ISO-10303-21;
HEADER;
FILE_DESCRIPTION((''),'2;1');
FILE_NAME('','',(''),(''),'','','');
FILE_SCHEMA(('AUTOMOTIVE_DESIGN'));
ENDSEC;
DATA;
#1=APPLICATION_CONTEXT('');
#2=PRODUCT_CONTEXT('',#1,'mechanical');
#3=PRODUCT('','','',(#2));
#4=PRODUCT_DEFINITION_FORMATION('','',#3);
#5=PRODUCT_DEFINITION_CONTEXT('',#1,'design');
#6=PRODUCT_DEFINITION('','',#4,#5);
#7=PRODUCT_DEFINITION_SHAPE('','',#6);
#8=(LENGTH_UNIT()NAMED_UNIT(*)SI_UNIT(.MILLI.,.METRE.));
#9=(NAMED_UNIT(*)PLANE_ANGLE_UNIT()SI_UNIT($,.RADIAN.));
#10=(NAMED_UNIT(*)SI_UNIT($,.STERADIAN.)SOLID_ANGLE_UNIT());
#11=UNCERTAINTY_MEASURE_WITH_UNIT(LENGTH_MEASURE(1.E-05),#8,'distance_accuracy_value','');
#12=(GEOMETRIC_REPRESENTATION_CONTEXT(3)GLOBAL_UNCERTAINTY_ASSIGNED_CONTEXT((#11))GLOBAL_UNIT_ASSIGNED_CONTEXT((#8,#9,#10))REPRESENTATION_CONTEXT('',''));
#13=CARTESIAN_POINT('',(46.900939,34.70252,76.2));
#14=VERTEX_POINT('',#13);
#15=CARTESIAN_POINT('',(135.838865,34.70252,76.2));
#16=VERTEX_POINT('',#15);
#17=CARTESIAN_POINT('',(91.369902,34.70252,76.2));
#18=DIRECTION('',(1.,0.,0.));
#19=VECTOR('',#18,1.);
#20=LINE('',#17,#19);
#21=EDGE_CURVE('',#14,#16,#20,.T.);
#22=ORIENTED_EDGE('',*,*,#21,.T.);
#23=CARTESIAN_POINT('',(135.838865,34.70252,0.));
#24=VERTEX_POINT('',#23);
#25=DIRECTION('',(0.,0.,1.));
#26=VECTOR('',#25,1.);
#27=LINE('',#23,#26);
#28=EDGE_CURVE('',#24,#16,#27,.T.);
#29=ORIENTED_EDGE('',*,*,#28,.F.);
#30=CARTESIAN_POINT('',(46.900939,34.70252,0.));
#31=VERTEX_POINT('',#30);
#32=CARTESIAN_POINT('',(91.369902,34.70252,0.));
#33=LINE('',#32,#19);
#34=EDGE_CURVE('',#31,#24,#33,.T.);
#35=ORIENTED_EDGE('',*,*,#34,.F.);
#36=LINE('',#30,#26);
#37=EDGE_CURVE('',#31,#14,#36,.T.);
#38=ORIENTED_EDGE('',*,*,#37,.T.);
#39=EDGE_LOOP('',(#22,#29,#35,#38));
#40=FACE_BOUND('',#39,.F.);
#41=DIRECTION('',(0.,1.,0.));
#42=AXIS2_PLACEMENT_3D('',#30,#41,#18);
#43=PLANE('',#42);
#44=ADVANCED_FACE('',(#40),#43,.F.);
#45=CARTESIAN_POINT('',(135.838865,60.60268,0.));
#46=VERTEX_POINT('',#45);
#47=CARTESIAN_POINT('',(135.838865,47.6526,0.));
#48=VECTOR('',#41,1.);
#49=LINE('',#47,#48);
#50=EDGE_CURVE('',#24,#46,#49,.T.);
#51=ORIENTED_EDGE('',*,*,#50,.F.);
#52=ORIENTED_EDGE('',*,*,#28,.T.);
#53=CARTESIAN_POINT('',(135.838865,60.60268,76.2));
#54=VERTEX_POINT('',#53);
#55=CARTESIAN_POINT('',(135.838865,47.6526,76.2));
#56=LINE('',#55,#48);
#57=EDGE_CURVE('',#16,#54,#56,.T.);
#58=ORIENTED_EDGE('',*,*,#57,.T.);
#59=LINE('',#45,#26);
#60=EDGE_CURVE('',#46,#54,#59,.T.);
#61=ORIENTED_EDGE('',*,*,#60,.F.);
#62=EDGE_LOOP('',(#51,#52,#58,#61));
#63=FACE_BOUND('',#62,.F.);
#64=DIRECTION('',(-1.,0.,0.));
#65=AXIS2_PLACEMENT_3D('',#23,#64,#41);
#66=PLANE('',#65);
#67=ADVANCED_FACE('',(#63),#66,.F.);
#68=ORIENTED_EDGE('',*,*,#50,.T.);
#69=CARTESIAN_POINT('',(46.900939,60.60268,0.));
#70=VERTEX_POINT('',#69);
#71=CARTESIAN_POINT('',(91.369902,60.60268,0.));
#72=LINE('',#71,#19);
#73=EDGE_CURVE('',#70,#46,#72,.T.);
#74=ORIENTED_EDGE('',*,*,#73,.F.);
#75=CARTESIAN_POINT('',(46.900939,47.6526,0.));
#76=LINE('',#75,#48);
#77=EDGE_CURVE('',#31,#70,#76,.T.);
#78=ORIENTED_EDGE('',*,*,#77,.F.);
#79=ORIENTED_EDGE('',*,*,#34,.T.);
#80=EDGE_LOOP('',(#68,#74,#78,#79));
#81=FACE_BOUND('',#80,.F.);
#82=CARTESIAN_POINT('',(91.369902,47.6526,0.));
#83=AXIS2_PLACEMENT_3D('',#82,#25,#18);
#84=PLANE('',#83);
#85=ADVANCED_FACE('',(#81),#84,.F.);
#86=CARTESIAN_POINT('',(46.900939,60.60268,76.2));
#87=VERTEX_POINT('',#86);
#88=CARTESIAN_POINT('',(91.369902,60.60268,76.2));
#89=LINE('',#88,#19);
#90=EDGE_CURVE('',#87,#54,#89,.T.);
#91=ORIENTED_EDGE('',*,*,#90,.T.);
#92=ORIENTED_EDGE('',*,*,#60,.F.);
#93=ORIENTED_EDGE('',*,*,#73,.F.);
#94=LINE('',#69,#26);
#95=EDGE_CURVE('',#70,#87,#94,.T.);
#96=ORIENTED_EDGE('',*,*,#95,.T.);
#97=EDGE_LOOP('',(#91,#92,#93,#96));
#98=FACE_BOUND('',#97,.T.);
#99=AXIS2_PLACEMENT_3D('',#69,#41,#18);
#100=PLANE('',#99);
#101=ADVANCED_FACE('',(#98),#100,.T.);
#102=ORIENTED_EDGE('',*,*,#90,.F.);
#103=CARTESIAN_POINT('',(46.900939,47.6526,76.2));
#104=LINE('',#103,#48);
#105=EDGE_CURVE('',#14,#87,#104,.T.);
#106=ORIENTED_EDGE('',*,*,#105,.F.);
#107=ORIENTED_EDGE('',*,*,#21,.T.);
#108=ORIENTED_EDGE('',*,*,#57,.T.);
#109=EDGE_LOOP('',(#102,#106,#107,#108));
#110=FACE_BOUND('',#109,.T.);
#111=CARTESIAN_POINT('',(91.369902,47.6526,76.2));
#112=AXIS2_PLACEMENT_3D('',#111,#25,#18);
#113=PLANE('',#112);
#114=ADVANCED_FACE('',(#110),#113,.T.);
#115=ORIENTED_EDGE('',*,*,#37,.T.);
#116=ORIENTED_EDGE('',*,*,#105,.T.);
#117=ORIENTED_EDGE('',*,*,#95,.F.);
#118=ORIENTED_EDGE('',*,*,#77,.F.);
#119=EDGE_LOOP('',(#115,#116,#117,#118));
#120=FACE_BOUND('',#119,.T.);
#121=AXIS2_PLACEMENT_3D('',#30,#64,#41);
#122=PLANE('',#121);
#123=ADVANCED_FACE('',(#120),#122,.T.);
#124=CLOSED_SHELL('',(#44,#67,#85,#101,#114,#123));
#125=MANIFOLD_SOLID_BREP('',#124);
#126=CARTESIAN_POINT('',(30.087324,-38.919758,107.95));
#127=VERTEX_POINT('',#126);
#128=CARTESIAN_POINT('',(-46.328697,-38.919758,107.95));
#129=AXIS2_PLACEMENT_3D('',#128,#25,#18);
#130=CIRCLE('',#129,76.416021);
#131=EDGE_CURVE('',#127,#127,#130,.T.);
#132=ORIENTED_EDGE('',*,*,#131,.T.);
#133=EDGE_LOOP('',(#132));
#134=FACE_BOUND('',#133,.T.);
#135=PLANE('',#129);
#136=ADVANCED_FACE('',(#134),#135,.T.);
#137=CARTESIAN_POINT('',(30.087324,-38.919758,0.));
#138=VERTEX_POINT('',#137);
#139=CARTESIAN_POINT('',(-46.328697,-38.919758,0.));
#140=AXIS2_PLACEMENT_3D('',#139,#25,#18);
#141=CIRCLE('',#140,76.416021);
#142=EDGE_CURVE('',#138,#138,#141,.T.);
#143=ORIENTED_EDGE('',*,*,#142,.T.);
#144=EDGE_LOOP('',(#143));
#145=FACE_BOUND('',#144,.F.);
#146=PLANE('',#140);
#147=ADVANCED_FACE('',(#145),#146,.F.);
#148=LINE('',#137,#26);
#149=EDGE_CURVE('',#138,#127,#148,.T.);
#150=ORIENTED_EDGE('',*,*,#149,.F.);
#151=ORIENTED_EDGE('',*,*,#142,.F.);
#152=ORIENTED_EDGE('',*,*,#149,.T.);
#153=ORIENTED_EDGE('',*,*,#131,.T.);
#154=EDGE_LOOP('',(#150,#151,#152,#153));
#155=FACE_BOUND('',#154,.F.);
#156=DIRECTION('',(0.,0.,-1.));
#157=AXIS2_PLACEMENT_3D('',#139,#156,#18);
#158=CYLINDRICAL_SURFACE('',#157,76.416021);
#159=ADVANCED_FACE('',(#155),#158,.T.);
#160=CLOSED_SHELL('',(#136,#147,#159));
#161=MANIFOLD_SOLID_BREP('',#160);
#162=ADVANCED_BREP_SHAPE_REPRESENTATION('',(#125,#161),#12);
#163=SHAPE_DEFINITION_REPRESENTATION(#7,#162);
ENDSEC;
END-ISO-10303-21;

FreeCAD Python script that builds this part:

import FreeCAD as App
import Part
import Sketcher


def add_polygon(sketch, points):
    """Adds a closed chain of lines whose ends are joined by coincident constraints."""
    first, n = sketch.GeometryCount, len(points)
    for a, b in zip(points, points[1:] + points[:1]):
        sketch.addGeometry(Part.LineSegment(App.Vector(*a, 0), App.Vector(*b, 0)), False)
    for i in range(n):
        sketch.addConstraint(Sketcher.Constraint("Coincident", first + i, 2, first + (i + 1) % n, 1))

doc = App.newDocument("Part")
params = doc.addObject("Spreadsheet::Sheet", "Params")
for row, (alias, value) in enumerate([
    ("pad1_length", "4.25 in"),
    ("pad2_length", "3 in"),
], start=1):
    params.set(f"A{row}", alias)
    params.set(f"B{row}", "=" + value)
    params.setAlias(f"B{row}", alias)

body = doc.addObject("PartDesign::Body", "Body")

# Sketch on XY plane
sketch1 = body.newObject("Sketcher::SketchObject", "Sketch")
sketch1.AttachmentSupport = (doc.getObject("XY_Plane"), [""])
sketch1.MapMode = "FlatFace"
sketch1.addGeometry(Part.Circle(App.Vector(-46, -39, 0), App.Vector(0, 0, 1), 76), False)
sketch1.addConstraint(Sketcher.Constraint("Diameter", 0, 152.832042))
sketch1.addConstraint(Sketcher.Constraint("DistanceY", 0, 3, -1, 1, 38.919758))
sketch1.addConstraint(Sketcher.Constraint("DistanceX", 0, 3, -1, 1, 46.328697))
pad1 = body.newObject("PartDesign::Pad", "Pad")
pad1.Profile = sketch1
pad1.setExpression("Length", "Params.pad1_length")
body2 = doc.addObject("PartDesign::Body", "Body001")

# Sketch on XY plane
sketch2 = body2.newObject("Sketcher::SketchObject", "Sketch001")
sketch2.AttachmentSupport = (doc.getObject("XY_Plane001"), [""])
sketch2.MapMode = "FlatFace"
add_polygon(sketch2, [(47, 61), (47, 35), (136, 35), (136, 61)])  # lines 0-3
sketch2.addConstraint(Sketcher.Constraint("Vertical", 0))
sketch2.addConstraint(Sketcher.Constraint("Horizontal", 1))
sketch2.addConstraint(Sketcher.Constraint("Vertical", 2))
sketch2.addConstraint(Sketcher.Constraint("Horizontal", 3))
sketch2.addConstraint(Sketcher.Constraint("DistanceY", 0, 2, 0, 1, 25.900159))
sketch2.addConstraint(Sketcher.Constraint("DistanceX", 1, 1, 1, 2, 88.937927))
sketch2.addConstraint(Sketcher.Constraint("DistanceX", -1, 1, 0, 2, 46.900939))
sketch2.addConstraint(Sketcher.Constraint("DistanceY", -1, 1, 0, 2, 34.70252))
pad2 = body2.newObject("PartDesign::Pad", "Pad001")
pad2.Profile = sketch2
pad2.setExpression("Length", "Params.pad2_length")

doc.recompute()
